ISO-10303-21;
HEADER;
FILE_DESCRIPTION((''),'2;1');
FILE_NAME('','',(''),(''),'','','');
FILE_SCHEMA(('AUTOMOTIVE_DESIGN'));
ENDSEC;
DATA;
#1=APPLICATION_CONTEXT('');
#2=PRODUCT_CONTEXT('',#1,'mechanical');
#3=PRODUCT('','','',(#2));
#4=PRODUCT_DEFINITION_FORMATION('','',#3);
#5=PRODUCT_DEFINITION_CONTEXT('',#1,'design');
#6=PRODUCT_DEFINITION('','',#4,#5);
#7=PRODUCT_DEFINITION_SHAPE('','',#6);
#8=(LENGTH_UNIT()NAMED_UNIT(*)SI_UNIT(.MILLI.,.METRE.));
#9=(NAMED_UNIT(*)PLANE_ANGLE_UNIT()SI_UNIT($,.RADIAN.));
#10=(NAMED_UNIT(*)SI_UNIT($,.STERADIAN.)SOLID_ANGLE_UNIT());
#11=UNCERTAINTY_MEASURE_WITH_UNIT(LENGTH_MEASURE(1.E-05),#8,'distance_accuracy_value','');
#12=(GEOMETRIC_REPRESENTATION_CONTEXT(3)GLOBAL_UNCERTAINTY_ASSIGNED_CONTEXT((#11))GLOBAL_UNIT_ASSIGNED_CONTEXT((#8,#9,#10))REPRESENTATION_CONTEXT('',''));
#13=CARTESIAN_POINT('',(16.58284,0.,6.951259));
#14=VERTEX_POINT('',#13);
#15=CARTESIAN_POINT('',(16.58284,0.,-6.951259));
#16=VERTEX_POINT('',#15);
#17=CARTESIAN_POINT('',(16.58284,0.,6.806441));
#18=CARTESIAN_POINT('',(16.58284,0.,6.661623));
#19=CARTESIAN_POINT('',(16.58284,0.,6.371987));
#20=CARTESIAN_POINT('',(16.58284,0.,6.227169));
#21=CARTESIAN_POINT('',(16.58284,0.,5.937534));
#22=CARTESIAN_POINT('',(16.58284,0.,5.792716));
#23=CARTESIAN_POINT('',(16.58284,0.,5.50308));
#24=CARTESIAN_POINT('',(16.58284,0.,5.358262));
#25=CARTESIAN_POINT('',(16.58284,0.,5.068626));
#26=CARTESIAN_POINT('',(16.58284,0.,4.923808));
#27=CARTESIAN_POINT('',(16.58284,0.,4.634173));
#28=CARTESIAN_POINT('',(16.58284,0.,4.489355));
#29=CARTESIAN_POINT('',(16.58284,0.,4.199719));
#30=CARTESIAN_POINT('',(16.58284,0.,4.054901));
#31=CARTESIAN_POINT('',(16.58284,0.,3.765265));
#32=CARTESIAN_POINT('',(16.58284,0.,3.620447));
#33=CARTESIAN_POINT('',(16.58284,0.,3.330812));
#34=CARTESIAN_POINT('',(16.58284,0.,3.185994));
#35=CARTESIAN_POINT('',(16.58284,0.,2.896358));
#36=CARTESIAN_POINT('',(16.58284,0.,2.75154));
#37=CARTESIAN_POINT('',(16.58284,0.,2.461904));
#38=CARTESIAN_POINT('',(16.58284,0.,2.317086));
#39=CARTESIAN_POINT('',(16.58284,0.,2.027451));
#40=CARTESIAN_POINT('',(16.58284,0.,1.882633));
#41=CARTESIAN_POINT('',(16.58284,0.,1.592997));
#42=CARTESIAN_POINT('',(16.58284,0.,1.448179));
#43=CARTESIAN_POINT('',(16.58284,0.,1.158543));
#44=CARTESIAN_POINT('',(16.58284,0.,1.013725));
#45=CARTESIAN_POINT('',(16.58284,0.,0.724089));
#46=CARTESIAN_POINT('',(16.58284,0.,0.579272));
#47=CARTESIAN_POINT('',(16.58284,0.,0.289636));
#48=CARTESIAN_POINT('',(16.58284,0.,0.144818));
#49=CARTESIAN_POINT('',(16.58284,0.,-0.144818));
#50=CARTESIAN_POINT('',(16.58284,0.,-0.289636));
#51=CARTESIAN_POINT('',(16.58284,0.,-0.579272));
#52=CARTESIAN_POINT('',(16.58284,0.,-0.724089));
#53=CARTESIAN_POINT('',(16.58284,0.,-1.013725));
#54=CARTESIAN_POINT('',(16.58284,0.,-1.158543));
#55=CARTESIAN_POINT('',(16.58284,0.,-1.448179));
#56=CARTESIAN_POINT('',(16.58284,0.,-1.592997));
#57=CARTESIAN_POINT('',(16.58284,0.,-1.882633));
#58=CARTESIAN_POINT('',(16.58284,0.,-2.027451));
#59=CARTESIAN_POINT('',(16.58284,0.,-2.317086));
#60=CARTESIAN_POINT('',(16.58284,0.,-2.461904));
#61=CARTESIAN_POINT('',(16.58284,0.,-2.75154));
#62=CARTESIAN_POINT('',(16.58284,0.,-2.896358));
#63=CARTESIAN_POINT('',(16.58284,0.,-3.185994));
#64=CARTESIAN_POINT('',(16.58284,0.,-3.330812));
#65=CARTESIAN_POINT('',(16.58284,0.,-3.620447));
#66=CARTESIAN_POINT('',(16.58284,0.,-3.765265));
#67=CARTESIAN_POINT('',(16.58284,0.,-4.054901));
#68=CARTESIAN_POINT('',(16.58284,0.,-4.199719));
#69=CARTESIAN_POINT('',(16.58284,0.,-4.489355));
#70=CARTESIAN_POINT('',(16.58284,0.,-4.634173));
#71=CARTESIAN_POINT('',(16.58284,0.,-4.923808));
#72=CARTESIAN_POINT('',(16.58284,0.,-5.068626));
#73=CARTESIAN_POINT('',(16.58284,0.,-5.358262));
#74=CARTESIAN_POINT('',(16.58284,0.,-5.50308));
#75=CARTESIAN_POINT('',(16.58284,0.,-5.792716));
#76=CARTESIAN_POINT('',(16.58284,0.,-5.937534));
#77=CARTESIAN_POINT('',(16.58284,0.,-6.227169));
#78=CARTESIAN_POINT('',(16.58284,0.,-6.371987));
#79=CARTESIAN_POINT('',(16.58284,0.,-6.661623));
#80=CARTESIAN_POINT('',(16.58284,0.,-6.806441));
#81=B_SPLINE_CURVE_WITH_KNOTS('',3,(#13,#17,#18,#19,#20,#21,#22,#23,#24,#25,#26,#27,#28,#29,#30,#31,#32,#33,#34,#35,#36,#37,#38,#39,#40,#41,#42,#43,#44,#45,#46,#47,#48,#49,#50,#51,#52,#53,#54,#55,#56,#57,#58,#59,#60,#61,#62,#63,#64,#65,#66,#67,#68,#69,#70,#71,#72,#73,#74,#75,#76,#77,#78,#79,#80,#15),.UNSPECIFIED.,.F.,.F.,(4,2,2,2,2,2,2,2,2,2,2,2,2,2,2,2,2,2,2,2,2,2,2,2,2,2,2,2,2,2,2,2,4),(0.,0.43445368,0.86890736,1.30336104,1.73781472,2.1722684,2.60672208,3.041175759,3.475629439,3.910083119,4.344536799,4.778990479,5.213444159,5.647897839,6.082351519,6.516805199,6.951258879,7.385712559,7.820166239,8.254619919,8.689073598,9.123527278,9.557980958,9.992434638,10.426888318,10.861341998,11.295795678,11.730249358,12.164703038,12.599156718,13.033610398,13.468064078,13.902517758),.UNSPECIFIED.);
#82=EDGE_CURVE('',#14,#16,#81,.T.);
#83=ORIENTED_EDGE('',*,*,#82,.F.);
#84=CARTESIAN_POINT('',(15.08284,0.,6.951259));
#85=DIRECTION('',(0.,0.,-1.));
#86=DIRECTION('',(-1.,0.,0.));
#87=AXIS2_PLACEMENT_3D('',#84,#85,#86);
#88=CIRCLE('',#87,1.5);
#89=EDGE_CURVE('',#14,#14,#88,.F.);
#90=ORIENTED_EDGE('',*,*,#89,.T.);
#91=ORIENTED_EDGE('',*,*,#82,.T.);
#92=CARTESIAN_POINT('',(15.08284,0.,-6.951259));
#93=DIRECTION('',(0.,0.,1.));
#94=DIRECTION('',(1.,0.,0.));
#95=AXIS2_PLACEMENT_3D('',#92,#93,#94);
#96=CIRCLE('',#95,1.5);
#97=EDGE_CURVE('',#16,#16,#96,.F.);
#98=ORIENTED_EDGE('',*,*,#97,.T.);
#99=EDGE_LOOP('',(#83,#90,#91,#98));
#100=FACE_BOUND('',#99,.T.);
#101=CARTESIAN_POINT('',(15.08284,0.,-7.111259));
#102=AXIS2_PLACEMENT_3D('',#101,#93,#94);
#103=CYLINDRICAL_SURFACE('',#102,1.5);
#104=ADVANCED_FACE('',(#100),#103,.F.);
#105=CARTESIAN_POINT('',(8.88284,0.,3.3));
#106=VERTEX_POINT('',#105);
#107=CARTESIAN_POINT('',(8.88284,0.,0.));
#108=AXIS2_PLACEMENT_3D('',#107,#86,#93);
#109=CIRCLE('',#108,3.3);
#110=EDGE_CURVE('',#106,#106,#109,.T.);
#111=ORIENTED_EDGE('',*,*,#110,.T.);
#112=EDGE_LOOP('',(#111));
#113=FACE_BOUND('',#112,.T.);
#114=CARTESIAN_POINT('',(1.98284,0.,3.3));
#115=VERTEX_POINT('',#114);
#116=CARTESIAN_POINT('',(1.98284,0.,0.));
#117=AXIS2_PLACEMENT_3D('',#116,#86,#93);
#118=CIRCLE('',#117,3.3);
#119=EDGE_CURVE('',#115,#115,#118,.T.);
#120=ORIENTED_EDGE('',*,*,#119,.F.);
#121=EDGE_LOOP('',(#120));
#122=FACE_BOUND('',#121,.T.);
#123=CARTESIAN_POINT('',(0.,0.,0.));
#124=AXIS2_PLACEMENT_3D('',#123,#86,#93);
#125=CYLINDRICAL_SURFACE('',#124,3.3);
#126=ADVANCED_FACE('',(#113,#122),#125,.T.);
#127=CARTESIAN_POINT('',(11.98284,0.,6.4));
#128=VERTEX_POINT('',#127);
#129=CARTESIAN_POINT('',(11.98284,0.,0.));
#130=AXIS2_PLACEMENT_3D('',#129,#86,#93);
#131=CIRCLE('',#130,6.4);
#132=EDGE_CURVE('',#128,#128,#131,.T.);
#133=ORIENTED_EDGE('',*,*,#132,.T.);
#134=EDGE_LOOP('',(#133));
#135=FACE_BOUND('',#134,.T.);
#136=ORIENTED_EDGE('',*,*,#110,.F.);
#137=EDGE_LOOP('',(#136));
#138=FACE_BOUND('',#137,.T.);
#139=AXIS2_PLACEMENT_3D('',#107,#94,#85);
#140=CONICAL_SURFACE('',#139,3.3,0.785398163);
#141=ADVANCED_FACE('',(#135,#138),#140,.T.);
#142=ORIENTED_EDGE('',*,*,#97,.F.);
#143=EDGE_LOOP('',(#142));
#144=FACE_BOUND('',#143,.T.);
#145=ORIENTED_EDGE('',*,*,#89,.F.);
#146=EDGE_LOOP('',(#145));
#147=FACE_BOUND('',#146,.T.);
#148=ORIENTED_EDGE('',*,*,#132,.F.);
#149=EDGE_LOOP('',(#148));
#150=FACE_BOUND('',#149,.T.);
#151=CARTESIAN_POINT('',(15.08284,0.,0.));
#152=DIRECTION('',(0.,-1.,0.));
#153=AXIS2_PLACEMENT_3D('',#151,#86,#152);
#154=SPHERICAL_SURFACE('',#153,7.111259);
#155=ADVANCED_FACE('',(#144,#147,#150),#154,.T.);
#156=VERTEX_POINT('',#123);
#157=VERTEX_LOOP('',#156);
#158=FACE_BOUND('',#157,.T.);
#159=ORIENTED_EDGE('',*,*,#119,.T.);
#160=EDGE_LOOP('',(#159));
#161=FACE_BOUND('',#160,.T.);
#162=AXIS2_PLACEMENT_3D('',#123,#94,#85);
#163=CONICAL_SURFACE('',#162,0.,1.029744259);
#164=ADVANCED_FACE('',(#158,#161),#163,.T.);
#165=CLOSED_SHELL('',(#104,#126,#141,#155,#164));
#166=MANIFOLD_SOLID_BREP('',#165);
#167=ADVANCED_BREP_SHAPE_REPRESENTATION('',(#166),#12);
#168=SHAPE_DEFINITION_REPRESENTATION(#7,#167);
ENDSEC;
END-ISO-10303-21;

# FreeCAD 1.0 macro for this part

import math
import FreeCAD as App
import Part
import Sketcher
Q = App.Units.Quantity

doc = App.newDocument("Part")
body = doc.addObject("PartDesign::Body", "Body")

# Sketch on XY plane
sketch1 = doc.addObject("Sketcher::SketchObject", "Sketch")
body.addObject(sketch1)
sketch1.AttachmentSupport = (doc.XY_Plane, [""])
sketch1.MapMode = "FlatFace"
sketch1.addGeometry(Part.LineSegment(App.Vector(0, 0, 0), App.Vector(2, -3.3, 0)), False)
sketch1.addGeometry(Part.LineSegment(App.Vector(2, -3.3, 0), App.Vector(8.9, -3.3, 0)), False)
sketch1.addGeometry(Part.LineSegment(App.Vector(8.9, -3.3, 0), App.Vector(12, -6.4, 0)), False)
sketch1.addGeometry(Part.ArcOfCircle(Part.Circle(App.Vector(15.1, 0, 0), App.Vector(0, 0, 1), 7.1), math.radians(-116), math.radians(0)), False)
sketch1.addGeometry(Part.LineSegment(App.Vector(22.2, 0, 0), App.Vector(0, 0, 0)), False)
sketch1.addConstraint(Sketcher.Constraint("Coincident", 0, 2, 1, 1))
sketch1.addConstraint(Sketcher.Constraint("Coincident", 1, 2, 2, 1))
sketch1.addConstraint(Sketcher.Constraint("Coincident", 2, 2, 3, 1))
sketch1.addConstraint(Sketcher.Constraint("Coincident", 3, 2, 4, 1))
sketch1.addConstraint(Sketcher.Constraint("Coincident", 4, 2, 0, 1))
sketch1.addConstraint(Sketcher.Constraint("Horizontal", 1))
sketch1.addConstraint(Sketcher.Constraint("Horizontal", 4))
sketch1.addConstraint(Sketcher.Constraint("Coincident", 4, 2, -1, 1))
sketch1.addConstraint(Sketcher.Constraint("PointOnObject", 3, 3, -1))
sketch1.addConstraint(Sketcher.Constraint("Angle", 0, Q("-59 deg")))
sketch1.addConstraint(Sketcher.Constraint("Angle", 2, Q("-45 deg")))
sketch1.addConstraint(Sketcher.Constraint("DistanceX", 1, 1, 1, 2, Q("6.9 mm")))
sketch1.addConstraint(Sketcher.Constraint("DistanceX", 0, 2, 2, 2, Q("10 mm")))
sketch1.addConstraint(Sketcher.Constraint("DistanceY", 0, 2, -1, 1, Q("3.3 mm")))
sketch1.addConstraint(Sketcher.Constraint("DistanceX", 0, 2, 3, 3, Q("13.1 mm")))
revolution = doc.addObject("PartDesign::Revolution", "Revolution")
body.addObject(revolution)
revolution.Profile = sketch1
revolution.ReferenceAxis = (sketch1, ["H_Axis"])
revolution.Angle = 360

# Sketch on XY plane
sketch2 = doc.addObject("Sketcher::SketchObject", "Sketch001")
body.addObject(sketch2)
sketch2.AttachmentSupport = (doc.XY_Plane, [""])
sketch2.MapMode = "FlatFace"
sketch2.addGeometry(Part.Circle(App.Vector(15.1, 0, 0), App.Vector(0, 0, 1), 1.5), False)
sketch2.addConstraint(Sketcher.Constraint("PointOnObject", 0, 3, -1))
sketch2.addConstraint(Sketcher.Constraint("Diameter", 0, Q("3 mm")))
sketch2.addConstraint(Sketcher.Constraint("DistanceX", -1, 1, 0, 3, Q("15.08284 mm")))
pocket1 = doc.addObject("PartDesign::Pocket", "Pocket")
body.addObject(pocket1)
pocket1.Profile = sketch2
pocket1.Type = "ThroughAll"
pocket1.Midplane = True

doc.recompute()
